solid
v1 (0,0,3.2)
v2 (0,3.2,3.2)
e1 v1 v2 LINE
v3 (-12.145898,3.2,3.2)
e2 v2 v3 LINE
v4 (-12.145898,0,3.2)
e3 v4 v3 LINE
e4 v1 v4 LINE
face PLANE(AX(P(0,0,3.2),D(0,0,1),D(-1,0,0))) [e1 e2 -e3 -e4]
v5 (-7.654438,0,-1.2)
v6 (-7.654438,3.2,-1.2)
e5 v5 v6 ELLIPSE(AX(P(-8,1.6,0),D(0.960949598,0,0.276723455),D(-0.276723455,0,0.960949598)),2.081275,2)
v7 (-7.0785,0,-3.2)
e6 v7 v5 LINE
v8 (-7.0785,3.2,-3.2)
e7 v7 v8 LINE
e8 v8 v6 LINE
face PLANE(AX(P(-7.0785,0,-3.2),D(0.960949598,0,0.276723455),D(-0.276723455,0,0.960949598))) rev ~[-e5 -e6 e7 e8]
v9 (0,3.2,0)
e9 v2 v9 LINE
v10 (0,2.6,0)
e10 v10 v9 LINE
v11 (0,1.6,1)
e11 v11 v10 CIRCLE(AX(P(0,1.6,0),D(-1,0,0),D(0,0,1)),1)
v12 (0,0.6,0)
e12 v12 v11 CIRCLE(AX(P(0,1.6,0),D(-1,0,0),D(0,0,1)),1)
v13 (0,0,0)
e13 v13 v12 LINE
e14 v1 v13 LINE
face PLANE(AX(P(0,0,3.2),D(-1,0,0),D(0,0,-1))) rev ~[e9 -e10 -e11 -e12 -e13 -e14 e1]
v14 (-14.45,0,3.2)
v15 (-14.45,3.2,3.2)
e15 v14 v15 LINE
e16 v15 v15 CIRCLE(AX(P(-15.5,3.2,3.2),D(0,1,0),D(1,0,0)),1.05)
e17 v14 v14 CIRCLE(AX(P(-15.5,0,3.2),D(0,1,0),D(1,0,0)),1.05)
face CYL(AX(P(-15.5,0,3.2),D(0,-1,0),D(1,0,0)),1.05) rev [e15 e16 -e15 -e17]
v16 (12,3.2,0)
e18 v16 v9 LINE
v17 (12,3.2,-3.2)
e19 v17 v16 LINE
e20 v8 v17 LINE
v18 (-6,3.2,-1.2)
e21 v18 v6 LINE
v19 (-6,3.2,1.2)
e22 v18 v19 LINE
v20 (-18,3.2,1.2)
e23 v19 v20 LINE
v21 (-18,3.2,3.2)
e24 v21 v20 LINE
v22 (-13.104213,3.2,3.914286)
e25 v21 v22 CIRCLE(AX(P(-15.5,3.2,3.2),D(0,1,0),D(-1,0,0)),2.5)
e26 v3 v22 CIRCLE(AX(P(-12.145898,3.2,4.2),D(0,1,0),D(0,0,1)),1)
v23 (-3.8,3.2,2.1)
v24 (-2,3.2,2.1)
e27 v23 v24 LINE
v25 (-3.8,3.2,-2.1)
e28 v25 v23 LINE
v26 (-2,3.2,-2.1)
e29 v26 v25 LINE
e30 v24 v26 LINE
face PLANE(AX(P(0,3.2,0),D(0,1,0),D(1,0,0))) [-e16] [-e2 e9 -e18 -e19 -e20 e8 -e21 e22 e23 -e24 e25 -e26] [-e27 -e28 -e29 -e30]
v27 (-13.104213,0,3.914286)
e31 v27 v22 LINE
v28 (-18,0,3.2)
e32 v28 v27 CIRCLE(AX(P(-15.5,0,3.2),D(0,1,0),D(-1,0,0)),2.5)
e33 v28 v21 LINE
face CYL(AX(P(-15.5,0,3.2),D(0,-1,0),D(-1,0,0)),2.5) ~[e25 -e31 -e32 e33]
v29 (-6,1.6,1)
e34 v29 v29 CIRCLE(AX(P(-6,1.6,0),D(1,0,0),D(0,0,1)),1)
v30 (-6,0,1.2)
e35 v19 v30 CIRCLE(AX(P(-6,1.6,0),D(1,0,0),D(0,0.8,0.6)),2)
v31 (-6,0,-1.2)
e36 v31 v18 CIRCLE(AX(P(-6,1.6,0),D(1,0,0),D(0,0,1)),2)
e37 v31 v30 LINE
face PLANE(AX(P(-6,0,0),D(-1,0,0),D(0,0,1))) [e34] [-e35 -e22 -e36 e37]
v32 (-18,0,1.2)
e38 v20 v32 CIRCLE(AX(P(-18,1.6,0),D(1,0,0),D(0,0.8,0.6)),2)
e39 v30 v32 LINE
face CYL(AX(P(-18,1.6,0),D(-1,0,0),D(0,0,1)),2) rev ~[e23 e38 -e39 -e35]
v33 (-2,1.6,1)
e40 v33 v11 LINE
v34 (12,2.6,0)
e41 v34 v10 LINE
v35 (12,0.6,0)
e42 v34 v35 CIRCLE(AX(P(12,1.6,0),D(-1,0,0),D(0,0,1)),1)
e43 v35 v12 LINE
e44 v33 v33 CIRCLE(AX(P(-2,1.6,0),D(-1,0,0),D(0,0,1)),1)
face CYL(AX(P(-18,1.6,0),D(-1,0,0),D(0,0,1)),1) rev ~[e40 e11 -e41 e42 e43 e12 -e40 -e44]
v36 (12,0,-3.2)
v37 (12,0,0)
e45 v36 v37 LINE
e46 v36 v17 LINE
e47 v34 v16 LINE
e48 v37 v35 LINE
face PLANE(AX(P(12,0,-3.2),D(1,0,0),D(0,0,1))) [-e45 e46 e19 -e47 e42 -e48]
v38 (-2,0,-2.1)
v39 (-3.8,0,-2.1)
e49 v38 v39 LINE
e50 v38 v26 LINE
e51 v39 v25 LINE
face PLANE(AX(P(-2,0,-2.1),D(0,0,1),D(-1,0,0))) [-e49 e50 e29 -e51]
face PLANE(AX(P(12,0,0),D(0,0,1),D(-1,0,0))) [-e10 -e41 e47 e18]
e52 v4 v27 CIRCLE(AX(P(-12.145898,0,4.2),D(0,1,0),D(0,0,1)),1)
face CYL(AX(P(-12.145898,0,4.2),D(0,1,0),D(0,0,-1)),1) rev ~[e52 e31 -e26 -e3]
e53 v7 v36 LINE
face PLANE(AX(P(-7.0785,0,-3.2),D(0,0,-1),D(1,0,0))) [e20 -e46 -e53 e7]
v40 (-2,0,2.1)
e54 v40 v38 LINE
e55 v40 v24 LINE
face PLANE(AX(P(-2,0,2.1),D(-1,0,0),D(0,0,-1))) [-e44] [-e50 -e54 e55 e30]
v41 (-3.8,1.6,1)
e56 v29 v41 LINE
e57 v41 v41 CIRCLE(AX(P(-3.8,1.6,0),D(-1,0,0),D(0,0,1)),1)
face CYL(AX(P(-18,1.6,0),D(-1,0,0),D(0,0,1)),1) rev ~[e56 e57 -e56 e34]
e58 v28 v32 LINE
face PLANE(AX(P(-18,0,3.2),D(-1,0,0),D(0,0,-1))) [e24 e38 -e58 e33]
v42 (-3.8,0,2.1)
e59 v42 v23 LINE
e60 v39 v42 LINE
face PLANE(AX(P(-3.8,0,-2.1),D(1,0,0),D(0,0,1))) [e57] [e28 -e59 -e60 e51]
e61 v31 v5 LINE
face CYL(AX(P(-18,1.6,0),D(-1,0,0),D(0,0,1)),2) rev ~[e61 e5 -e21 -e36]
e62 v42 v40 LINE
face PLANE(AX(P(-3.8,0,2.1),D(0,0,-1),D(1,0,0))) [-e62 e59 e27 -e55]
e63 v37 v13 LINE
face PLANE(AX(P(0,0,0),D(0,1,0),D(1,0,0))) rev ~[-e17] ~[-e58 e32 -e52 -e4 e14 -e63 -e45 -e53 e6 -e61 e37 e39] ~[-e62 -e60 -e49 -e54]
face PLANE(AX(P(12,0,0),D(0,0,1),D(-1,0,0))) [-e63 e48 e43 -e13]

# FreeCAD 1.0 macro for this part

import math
import FreeCAD as App
import Part
import Sketcher
Q = App.Units.Quantity


def edges_at(feature, points):
    """Names of the edges that pass closest to the given points."""
    edges = feature.Shape.Edges
    near = lambda p: min(range(len(edges)), key=lambda i: edges[i].distToShape(Part.Vertex(*p))[0])
    return sorted({f"Edge{near(p) + 1}" for p in points})

doc = App.newDocument("Part")
body = doc.addObject("PartDesign::Body", "Body")

# Sketch on XZ plane
sketch1 = doc.addObject("Sketcher::SketchObject", "Sketch")
body.addObject(sketch1)
sketch1.AttachmentSupport = (doc.XZ_Plane, [""])
sketch1.MapMode = "FlatFace"
sketch1.addGeometry([
    Part.LineSegment(App.Vector(12, 0, 0), App.Vector(12, -3.2, 0)),  # 0
    Part.LineSegment(App.Vector(12, -3.2, 0), App.Vector(-7.1, -3.2, 0)),  # 1
    Part.LineSegment(App.Vector(-7.1, -3.2, 0), App.Vector(-8, 0, 0)),  # 2
    Part.LineSegment(App.Vector(-8, 0, 0), App.Vector(-18, 0, 0)),  # 3
    Part.LineSegment(App.Vector(-18, 0, 0), App.Vector(-18, 3.2, 0)),  # 4
    Part.ArcOfCircle(Part.Circle(App.Vector(-15.5, 3.2, 0), App.Vector(0, 0, 1), 2.5), math.radians(0), math.radians(180)),  # 5
    Part.LineSegment(App.Vector(-13, 3.2, 0), App.Vector(0, 3.2, 0)),  # 6
    Part.LineSegment(App.Vector(0, 3.2, 0), App.Vector(0, 0, 0)),  # 7
    Part.LineSegment(App.Vector(0, 0, 0), App.Vector(12, 0, 0)),  # 8
    Part.Circle(App.Vector(-15.5, 3.2, 0), App.Vector(0, 0, 1), 1.1),  # 9
    Part.LineSegment(App.Vector(-3.8, 2.1, 0), App.Vector(-3.8, -2.1, 0)),  # 10
    Part.LineSegment(App.Vector(-3.8, -2.1, 0), App.Vector(-2, -2.1, 0)),  # 11
    Part.LineSegment(App.Vector(-2, -2.1, 0), App.Vector(-2, 2.1, 0)),  # 12
    Part.LineSegment(App.Vector(-2, 2.1, 0), App.Vector(-3.8, 2.1, 0)),  # 13
], False)
sketch1.addConstraint([
    Sketcher.Constraint("Coincident", 0, 2, 1, 1),
    Sketcher.Constraint("Coincident", 1, 2, 2, 1),
    Sketcher.Constraint("Coincident", 2, 2, 3, 1),
    Sketcher.Constraint("Coincident", 3, 2, 4, 1),
    Sketcher.Constraint("Tangent", 4, 2, 5, 2),
    Sketcher.Constraint("Coincident", 5, 1, 6, 1),
    Sketcher.Constraint("Coincident", 6, 2, 7, 1),
    Sketcher.Constraint("Coincident", 7, 2, 8, 1),
    Sketcher.Constraint("Coincident", 8, 2, 0, 1),
    Sketcher.Constraint("Coincident", 10, 2, 11, 1),
    Sketcher.Constraint("Coincident", 11, 2, 12, 1),
    Sketcher.Constraint("Coincident", 12, 2, 13, 1),
    Sketcher.Constraint("Coincident", 13, 2, 10, 1),
    Sketcher.Constraint("Vertical", 0),
    Sketcher.Constraint("Horizontal", 1),
    Sketcher.Constraint("Horizontal", 3),
    Sketcher.Constraint("Vertical", 4),
    Sketcher.Constraint("Horizontal", 6),
    Sketcher.Constraint("Vertical", 7),
    Sketcher.Constraint("Horizontal", 8),
    Sketcher.Constraint("Vertical", 10),
    Sketcher.Constraint("Horizontal", 11),
    Sketcher.Constraint("Vertical", 12),
    Sketcher.Constraint("Horizontal", 13),
    Sketcher.Constraint("Coincident", 7, 2, -1, 1),
    Sketcher.Constraint("Coincident", 9, 3, 5, 3),
    Sketcher.Constraint("PointOnObject", 2, 2, -1),
    Sketcher.Constraint("Horizontal", 4, 2, 5, 1),
    Sketcher.Constraint("Equal", 0, 4),
    Sketcher.Constraint("Diameter", 9, Q("2.1 mm")),
    Sketcher.Constraint("Radius", 5, Q("2.5 mm")),
    Sketcher.Constraint("DistanceX", 3, 2, 3, 1, Q("10 mm")),
    Sketcher.Constraint("DistanceX", 8, 1, 8, 2, Q("12 mm")),
    Sketcher.Constraint("DistanceX", 11, 1, 11, 2, Q("1.8 mm")),
    Sketcher.Constraint("DistanceY", 0, 2, 0, 1, Q("3.2 mm")),
    Sketcher.Constraint("DistanceY", 10, 2, 10, 1, Q("4.2 mm")),
    Sketcher.Constraint("DistanceX", 3, 2, -1, 1, Q("18 mm")),
    Sketcher.Constraint("DistanceX", 11, 2, -1, 1, Q("2 mm")),
    Sketcher.Constraint("DistanceY", 10, 2, -1, 1, Q("2.1 mm")),
    Sketcher.Constraint("Distance", 2, Q("3.33 mm")),
])
pad1 = doc.addObject("PartDesign::Pad", "Pad")
body.addObject(pad1)
pad1.Profile = sketch1
pad1.Length = 3.2
pad1.Reversed = True

# Sketch on YZ plane
sketch2 = doc.addObject("Sketcher::SketchObject", "Sketch001")
body.addObject(sketch2)
sketch2.AttachmentSupport = (doc.YZ_Plane, [""])
sketch2.MapMode = "FlatFace"
sketch2.AttachmentOffset = App.Placement(App.Vector(0, 0, -18), App.Rotation())
sketch2.addGeometry(Part.Circle(App.Vector(1.6, 0, 0), App.Vector(0, 0, 1), 1), False)
sketch2.addConstraint([
    Sketcher.Constraint("PointOnObject", 0, 3, -1),
    Sketcher.Constraint("Diameter", 0, Q("2 mm")),
    Sketcher.Constraint("DistanceX", -1, 1, 0, 3, Q("1.6 mm")),
])
pocket1 = doc.addObject("PartDesign::Pocket", "Pocket")
body.addObject(pocket1)
pocket1.Profile = sketch2
pocket1.Length = 30
pocket1.Reversed = True

# Sketch on YZ plane
sketch3 = doc.addObject("Sketcher::SketchObject", "Sketch002")
body.addObject(sketch3)
sketch3.AttachmentSupport = (doc.YZ_Plane, [""])
sketch3.MapMode = "FlatFace"
sketch3.AttachmentOffset = App.Placement(App.Vector(0, 0, -18), App.Rotation())
sketch3.addGeometry([
    Part.Circle(App.Vector(1.6, 0, 0), App.Vector(0, 0, 1), 2),
    Part.Circle(App.Vector(1.6, 0, 0), App.Vector(0, 0, 1), 1),
], False)
sketch3.addConstraint([
    Sketcher.Constraint("Coincident", 1, 3, 0, 3),
    Sketcher.Constraint("PointOnObject", 0, 3, -1),
    Sketcher.Constraint("Diameter", 0, Q("4 mm")),
    Sketcher.Constraint("Diameter", 1, Q("2 mm")),
    Sketcher.Constraint("DistanceX", -1, 1, 0, 3, Q("1.6 mm")),
])
pocket2 = doc.addObject("PartDesign::Pocket", "Pocket001")
body.addObject(pocket2)
pocket2.Profile = sketch3
pocket2.Length = 12
pocket2.Reversed = True
doc.recompute()

fillet = doc.addObject("PartDesign::Fillet", "Fillet")
body.addObject(fillet)
fillet.Base = (pocket2, edges_at(pocket2, [(-13, 1.6, 3.2)]))
fillet.Radius = 1

doc.recompute()
